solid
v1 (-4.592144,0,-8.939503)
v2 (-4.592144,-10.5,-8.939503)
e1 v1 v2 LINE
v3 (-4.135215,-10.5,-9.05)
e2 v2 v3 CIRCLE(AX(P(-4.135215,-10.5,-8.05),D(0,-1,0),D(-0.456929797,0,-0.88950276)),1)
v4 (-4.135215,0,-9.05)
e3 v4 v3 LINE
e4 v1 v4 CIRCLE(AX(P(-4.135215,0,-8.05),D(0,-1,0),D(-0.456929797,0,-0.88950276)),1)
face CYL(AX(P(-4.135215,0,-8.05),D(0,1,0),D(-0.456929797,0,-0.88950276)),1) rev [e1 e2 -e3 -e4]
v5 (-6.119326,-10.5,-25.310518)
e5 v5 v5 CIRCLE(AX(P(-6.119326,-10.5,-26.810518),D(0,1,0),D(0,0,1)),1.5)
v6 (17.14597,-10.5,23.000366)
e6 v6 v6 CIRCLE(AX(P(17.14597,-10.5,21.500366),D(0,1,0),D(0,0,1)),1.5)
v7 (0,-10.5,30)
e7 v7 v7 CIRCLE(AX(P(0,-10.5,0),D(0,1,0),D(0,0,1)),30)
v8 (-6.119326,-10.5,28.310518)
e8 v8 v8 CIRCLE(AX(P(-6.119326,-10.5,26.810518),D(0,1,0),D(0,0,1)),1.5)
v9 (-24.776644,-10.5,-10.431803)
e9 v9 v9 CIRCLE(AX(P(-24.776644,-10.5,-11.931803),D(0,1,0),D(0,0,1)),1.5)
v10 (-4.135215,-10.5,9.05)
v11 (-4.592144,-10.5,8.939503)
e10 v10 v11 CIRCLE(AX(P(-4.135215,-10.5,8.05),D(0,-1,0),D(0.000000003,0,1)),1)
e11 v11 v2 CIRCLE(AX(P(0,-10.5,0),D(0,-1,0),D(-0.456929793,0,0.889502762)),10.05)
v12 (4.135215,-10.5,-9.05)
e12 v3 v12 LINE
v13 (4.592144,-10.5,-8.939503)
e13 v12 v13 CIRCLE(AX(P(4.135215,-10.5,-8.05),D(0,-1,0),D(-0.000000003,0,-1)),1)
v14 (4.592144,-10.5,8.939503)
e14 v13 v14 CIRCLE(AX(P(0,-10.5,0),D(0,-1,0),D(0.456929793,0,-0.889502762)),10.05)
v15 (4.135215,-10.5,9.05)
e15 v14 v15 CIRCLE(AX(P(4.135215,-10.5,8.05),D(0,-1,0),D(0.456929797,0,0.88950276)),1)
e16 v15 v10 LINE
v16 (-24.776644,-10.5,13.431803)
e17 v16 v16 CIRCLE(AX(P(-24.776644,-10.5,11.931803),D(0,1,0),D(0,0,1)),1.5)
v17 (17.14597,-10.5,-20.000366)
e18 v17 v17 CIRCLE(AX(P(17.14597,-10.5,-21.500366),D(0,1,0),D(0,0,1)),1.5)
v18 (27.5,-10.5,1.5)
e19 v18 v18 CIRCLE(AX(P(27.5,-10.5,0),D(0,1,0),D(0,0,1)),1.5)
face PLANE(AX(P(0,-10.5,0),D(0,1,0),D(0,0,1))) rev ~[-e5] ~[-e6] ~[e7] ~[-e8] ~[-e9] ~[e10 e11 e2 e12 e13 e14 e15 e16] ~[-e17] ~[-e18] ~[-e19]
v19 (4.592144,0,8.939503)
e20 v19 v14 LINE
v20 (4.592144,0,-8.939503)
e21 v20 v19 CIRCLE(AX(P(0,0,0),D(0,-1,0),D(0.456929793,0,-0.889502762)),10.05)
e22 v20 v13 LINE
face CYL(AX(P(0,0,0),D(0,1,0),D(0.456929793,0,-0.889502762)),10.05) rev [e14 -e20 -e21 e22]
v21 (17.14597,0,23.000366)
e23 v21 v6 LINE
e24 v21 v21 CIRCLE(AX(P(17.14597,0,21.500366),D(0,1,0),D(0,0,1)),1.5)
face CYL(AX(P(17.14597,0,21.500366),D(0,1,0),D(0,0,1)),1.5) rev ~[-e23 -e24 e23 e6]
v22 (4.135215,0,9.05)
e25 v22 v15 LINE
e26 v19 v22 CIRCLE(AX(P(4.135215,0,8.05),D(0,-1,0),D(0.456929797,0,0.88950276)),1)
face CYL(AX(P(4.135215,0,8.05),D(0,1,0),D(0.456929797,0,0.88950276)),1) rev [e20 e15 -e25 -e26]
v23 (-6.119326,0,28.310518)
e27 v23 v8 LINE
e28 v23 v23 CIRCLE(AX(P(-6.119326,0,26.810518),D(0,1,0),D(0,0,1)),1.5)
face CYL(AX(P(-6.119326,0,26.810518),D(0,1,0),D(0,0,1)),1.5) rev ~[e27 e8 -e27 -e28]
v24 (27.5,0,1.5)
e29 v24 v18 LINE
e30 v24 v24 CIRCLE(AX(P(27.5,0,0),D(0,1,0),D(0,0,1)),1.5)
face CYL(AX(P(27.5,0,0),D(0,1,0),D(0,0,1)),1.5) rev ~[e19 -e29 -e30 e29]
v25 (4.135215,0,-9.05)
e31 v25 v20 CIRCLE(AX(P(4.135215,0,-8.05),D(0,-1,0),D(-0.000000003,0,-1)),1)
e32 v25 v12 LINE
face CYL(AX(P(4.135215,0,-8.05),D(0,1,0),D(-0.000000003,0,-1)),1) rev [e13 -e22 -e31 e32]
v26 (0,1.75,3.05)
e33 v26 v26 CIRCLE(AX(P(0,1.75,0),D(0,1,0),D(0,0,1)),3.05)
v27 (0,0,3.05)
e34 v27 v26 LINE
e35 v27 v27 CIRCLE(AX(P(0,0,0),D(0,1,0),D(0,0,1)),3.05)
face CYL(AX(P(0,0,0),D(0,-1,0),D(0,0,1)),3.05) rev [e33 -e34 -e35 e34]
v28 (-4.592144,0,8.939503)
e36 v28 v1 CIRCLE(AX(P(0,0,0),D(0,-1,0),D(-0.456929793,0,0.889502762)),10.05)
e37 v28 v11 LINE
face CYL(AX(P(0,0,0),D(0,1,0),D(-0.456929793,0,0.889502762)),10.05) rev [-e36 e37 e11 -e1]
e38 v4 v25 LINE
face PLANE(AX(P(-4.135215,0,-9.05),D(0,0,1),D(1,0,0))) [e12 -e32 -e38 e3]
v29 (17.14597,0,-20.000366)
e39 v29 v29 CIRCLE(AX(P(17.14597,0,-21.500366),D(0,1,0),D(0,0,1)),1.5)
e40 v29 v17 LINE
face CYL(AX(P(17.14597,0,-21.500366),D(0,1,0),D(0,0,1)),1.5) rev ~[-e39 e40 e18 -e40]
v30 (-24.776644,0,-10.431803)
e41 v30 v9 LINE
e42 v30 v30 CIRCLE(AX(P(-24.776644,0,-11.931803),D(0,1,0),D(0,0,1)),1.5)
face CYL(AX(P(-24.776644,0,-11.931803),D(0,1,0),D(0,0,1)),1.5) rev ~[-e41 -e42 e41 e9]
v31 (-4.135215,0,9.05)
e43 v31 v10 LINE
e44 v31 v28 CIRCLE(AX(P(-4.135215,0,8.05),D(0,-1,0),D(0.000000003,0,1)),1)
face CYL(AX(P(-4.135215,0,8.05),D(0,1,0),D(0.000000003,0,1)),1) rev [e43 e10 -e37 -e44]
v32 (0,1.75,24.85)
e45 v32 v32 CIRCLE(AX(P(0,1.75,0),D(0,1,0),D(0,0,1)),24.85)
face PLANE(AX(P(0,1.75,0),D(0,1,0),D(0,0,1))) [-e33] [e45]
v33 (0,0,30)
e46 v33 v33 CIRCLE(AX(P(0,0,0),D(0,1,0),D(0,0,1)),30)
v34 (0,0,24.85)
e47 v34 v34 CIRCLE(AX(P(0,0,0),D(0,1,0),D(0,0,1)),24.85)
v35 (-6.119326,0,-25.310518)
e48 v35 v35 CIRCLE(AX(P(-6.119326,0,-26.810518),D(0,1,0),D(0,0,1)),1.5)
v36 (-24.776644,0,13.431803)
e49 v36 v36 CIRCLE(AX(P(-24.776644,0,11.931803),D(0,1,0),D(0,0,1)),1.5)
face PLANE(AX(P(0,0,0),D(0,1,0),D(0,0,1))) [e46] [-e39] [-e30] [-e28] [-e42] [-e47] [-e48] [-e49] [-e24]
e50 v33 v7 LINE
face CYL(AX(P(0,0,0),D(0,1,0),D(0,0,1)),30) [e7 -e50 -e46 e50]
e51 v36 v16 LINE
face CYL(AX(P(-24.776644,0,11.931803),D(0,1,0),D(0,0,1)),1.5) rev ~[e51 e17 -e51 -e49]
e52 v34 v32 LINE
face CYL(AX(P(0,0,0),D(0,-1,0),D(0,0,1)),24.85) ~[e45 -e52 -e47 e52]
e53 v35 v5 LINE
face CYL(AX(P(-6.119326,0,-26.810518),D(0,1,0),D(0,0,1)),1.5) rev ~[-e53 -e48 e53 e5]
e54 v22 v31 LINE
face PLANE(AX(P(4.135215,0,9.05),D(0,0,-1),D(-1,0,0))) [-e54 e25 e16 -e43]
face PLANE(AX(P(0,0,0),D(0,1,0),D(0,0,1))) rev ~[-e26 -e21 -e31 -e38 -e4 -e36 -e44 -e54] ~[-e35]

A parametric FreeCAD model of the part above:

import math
import FreeCAD as App
import Part
import Sketcher

V = App.Vector

doc = App.newDocument("Part")
body = doc.addObject("PartDesign::Body", "Body")

# Sketch on XZ plane
sketch1 = doc.addObject("Sketcher::SketchObject", "Sketch")
body.addObject(sketch1)
sketch1.AttachmentSupport = (doc.XZ_Plane, [""])
sketch1.MapMode = "FlatFace"
sketch1.addGeometry(Part.Circle(V(0, 0, 0), V(0, 0, 1), 24.9), False)
sketch1.addGeometry(Part.Circle(V(0, 0, 0), V(0, 0, 1), 3), False)
sketch1.addConstraint(Sketcher.Constraint("Coincident", 0, 3, -1, 1))
sketch1.addConstraint(Sketcher.Constraint("Coincident", 1, 3, -1, 1))
sketch1.addConstraint(Sketcher.Constraint("Diameter", 0, 49.7))
sketch1.addConstraint(Sketcher.Constraint("Diameter", 1, 6.1))
pad1 = doc.addObject("PartDesign::Pad", "Pad")
body.addObject(pad1)
pad1.Profile = sketch1
pad1.Length = 1.75
pad1.Reversed = True

# Sketch on XZ plane
sketch2 = doc.addObject("Sketcher::SketchObject", "Sketch001")
body.addObject(sketch2)
sketch2.AttachmentSupport = (doc.XZ_Plane, [""])
sketch2.MapMode = "FlatFace"
sketch2.addGeometry(Part.Circle(V(0, 0, 0), V(0, 0, 1), 30), False)
sketch2.addGeometry(Part.ArcOfCircle(Part.Circle(V(-4.14, -8.05, 0), V(0, 0, 1), 1), math.radians(-117), math.radians(-90)), False)
sketch2.addGeometry(Part.LineSegment(V(-4.14, -9.05, 0), V(4.14, -9.05, 0)), False)
sketch2.addGeometry(Part.ArcOfCircle(Part.Circle(V(4.14, -8.05, 0), V(0, 0, 1), 1), math.radians(-90), math.radians(-63)), False)
sketch2.addGeometry(Part.ArcOfCircle(Part.Circle(V(0, 0, 0), V(0, 0, 1), 10.05), math.radians(-63), math.radians(63)), False)
sketch2.addGeometry(Part.ArcOfCircle(Part.Circle(V(4.14, 8.05, 0), V(0, 0, 1), 1), math.radians(63), math.radians(90)), False)
sketch2.addGeometry(Part.LineSegment(V(4.14, 9.05, 0), V(-4.14, 9.05, 0)), False)
sketch2.addGeometry(Part.ArcOfCircle(Part.Circle(V(-4.14, 8.05, 0), V(0, 0, 1), 1), math.radians(90), math.radians(117)), False)
sketch2.addGeometry(Part.ArcOfCircle(Part.Circle(V(0, 0, 0), V(0, 0, 1), 10.05), math.radians(117), math.radians(243)), False)
sketch2.addConstraint(Sketcher.Constraint("Tangent", 1, 2, 2, 1))
sketch2.addConstraint(Sketcher.Constraint("Tangent", 2, 2, 3, 1))
sketch2.addConstraint(Sketcher.Constraint("Tangent", 3, 2, 4, 1))
sketch2.addConstraint(Sketcher.Constraint("Tangent", 4, 2, 5, 1))
sketch2.addConstraint(Sketcher.Constraint("Tangent", 5, 2, 6, 1))
sketch2.addConstraint(Sketcher.Constraint("Tangent", 6, 2, 7, 1))
sketch2.addConstraint(Sketcher.Constraint("Tangent", 7, 2, 8, 1))
sketch2.addConstraint(Sketcher.Constraint("Tangent", 8, 2, 1, 1))
sketch2.addConstraint(Sketcher.Constraint("Horizontal", 2))
sketch2.addConstraint(Sketcher.Constraint("Horizontal", 6))
sketch2.addConstraint(Sketcher.Constraint("Coincident", 0, 3, -1, 1))
sketch2.addConstraint(Sketcher.Constraint("Coincident", 4, 3, -1, 1))
sketch2.addConstraint(Sketcher.Constraint("Coincident", 8, 3, -1, 1))
sketch2.addConstraint(Sketcher.Constraint("Equal", 1, 3))
sketch2.addConstraint(Sketcher.Constraint("Equal", 3, 5))
sketch2.addConstraint(Sketcher.Constraint("Equal", 5, 7))
sketch2.addConstraint(Sketcher.Constraint("Equal", 4, 8))
sketch2.addConstraint(Sketcher.Constraint("Vertical", 3, 3, 5, 3))
sketch2.addConstraint(Sketcher.Constraint("Diameter", 0, 60.0))
sketch2.addConstraint(Sketcher.Constraint("Radius", 1, 1.0))
sketch2.addConstraint(Sketcher.Constraint("Radius", 4, 10.05))
sketch2.addConstraint(Sketcher.Constraint("DistanceY", 3, 3, 5, 3, 16.1))
pad2 = doc.addObject("PartDesign::Pad", "Pad001")
body.addObject(pad2)
pad2.Profile = sketch2
pad2.Length = 10.5

# Sketch on XZ plane
sketch3 = doc.addObject("Sketcher::SketchObject", "Sketch002")
body.addObject(sketch3)
sketch3.AttachmentSupport = (doc.XZ_Plane, [""])
sketch3.MapMode = "FlatFace"
sketch3.addGeometry(Part.Circle(V(27.5, 0, 0), V(0, 0, 1), 1.5), False)
sketch3.addGeometry(Part.Circle(V(17.1, 21.5, 0), V(0, 0, 1), 1.5), False)
sketch3.addGeometry(Part.Circle(V(-6.1, 26.8, 0), V(0, 0, 1), 1.5), False)
sketch3.addGeometry(Part.Circle(V(-24.8, 11.9, 0), V(0, 0, 1), 1.5), False)
sketch3.addGeometry(Part.Circle(V(-24.8, -11.9, 0), V(0, 0, 1), 1.5), False)
sketch3.addGeometry(Part.Circle(V(-6.1, -26.8, 0), V(0, 0, 1), 1.5), False)
sketch3.addGeometry(Part.Circle(V(17.1, -21.5, 0), V(0, 0, 1), 1.5), False)
sketch3.addConstraint(Sketcher.Constraint("Equal", 0, 1))
sketch3.addConstraint(Sketcher.Constraint("Equal", 1, 2))
sketch3.addConstraint(Sketcher.Constraint("Equal", 2, 3))
sketch3.addConstraint(Sketcher.Constraint("Equal", 3, 4))
sketch3.addConstraint(Sketcher.Constraint("Equal", 4, 5))
sketch3.addConstraint(Sketcher.Constraint("Equal", 5, 6))
sketch3.addConstraint(Sketcher.Constraint("Symmetric", 3, 3, 4, 3, -1))
sketch3.addConstraint(Sketcher.Constraint("Symmetric", 2, 3, 5, 3, -1))
sketch3.addConstraint(Sketcher.Constraint("Symmetric", 1, 3, 6, 3, -1))
sketch3.addConstraint(Sketcher.Constraint("PointOnObject", 0, 3, -1))
sketch3.addConstraint(Sketcher.Constraint("Diameter", 0, 3.0))
sketch3.addConstraint(Sketcher.Constraint("DistanceX", -1, 1, 0, 3, 27.5))
sketch3.addConstraint(Sketcher.Constraint("DistanceX", -1, 1, 1, 3, 17.14597))
sketch3.addConstraint(Sketcher.Constraint("DistanceY", 1, 3, 2, 3, 5.310152))
sketch3.addConstraint(Sketcher.Constraint("DistanceX", 3, 3, 2, 3, 18.657318))
sketch3.addConstraint(Sketcher.Constraint("DistanceY", 4, 3, 2, 3, 38.74232))
sketch3.addConstraint(Sketcher.Constraint("DistanceY", 6, 3, 1, 3, 43.000732))
sketch3.addConstraint(Sketcher.Constraint("DistanceX", 2, 3, -1, 1, 6.119326))
pocket1 = doc.addObject("PartDesign::Pocket", "Pocket")
body.addObject(pocket1)
pocket1.Profile = sketch3
pocket1.Type = "ThroughAll"
pocket1.Reversed = True

doc.recompute()
